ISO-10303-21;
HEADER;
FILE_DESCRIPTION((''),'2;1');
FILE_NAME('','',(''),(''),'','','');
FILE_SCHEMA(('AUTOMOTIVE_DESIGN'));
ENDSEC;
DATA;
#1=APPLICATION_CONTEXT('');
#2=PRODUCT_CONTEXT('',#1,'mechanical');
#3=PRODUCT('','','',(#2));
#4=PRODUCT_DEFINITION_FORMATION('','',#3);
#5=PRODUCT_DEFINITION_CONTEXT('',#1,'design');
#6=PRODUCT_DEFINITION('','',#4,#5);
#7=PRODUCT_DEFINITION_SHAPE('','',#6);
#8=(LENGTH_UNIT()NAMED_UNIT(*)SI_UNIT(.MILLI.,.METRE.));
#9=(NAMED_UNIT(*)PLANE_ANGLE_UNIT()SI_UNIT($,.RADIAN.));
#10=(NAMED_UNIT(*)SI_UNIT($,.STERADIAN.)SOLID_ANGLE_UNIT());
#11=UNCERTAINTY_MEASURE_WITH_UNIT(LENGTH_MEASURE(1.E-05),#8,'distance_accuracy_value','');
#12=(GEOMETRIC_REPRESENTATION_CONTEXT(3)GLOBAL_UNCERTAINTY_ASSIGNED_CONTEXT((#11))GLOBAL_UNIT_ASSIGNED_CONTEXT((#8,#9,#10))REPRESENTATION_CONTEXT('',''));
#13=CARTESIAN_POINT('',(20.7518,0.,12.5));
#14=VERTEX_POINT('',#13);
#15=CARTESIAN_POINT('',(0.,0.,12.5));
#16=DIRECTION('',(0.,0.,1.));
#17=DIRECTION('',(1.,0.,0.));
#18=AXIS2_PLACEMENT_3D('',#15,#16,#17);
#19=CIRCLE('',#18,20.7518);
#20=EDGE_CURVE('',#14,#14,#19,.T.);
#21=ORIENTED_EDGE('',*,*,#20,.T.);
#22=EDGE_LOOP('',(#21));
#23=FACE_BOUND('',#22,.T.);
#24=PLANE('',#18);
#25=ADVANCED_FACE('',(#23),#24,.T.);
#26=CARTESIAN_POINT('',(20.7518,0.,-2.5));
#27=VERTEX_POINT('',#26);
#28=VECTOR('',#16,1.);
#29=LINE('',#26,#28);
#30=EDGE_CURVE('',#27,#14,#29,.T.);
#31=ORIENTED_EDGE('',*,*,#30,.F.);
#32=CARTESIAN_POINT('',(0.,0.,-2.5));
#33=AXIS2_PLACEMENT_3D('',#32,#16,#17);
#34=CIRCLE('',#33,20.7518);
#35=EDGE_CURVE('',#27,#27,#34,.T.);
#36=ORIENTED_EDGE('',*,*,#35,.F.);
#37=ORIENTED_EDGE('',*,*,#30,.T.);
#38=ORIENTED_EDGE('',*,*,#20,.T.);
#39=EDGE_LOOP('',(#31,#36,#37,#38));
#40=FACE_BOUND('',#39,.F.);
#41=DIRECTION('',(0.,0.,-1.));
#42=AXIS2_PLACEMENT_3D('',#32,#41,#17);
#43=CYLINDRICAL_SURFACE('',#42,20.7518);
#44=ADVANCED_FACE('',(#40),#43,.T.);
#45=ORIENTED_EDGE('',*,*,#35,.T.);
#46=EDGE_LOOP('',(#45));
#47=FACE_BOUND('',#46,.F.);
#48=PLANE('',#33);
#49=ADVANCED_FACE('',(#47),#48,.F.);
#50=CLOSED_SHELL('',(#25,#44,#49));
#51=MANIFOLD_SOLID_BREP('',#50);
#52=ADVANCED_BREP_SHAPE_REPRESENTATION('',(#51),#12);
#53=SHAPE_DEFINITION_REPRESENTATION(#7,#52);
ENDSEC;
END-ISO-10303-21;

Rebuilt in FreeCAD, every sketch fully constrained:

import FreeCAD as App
import Part
import Sketcher

V = App.Vector

doc = App.newDocument("Part")
body = doc.addObject("PartDesign::Body", "Body")

# Sketch on XY plane
sketch1 = body.newObject("Sketcher::SketchObject", "Sketch")
sketch1.AttachmentSupport = (doc.getObject("XY_Plane"), [""])
sketch1.MapMode = "FlatFace"
sketch1.AttachmentOffset = App.Placement(V(0, 0, -2.5), App.Rotation())
sketch1.addGeometry(Part.Circle(V(0, 0, 0), V(0, 0, 1), 21), False)
sketch1.addConstraint([
    Sketcher.Constraint("Coincident", 0, 3, -1, 1),
    Sketcher.Constraint("Diameter", 0, 41.5036),
])
pad1 = body.newObject("PartDesign::Pad", "Pad")
pad1.Profile = sketch1
pad1.Length = 15

doc.recompute()
